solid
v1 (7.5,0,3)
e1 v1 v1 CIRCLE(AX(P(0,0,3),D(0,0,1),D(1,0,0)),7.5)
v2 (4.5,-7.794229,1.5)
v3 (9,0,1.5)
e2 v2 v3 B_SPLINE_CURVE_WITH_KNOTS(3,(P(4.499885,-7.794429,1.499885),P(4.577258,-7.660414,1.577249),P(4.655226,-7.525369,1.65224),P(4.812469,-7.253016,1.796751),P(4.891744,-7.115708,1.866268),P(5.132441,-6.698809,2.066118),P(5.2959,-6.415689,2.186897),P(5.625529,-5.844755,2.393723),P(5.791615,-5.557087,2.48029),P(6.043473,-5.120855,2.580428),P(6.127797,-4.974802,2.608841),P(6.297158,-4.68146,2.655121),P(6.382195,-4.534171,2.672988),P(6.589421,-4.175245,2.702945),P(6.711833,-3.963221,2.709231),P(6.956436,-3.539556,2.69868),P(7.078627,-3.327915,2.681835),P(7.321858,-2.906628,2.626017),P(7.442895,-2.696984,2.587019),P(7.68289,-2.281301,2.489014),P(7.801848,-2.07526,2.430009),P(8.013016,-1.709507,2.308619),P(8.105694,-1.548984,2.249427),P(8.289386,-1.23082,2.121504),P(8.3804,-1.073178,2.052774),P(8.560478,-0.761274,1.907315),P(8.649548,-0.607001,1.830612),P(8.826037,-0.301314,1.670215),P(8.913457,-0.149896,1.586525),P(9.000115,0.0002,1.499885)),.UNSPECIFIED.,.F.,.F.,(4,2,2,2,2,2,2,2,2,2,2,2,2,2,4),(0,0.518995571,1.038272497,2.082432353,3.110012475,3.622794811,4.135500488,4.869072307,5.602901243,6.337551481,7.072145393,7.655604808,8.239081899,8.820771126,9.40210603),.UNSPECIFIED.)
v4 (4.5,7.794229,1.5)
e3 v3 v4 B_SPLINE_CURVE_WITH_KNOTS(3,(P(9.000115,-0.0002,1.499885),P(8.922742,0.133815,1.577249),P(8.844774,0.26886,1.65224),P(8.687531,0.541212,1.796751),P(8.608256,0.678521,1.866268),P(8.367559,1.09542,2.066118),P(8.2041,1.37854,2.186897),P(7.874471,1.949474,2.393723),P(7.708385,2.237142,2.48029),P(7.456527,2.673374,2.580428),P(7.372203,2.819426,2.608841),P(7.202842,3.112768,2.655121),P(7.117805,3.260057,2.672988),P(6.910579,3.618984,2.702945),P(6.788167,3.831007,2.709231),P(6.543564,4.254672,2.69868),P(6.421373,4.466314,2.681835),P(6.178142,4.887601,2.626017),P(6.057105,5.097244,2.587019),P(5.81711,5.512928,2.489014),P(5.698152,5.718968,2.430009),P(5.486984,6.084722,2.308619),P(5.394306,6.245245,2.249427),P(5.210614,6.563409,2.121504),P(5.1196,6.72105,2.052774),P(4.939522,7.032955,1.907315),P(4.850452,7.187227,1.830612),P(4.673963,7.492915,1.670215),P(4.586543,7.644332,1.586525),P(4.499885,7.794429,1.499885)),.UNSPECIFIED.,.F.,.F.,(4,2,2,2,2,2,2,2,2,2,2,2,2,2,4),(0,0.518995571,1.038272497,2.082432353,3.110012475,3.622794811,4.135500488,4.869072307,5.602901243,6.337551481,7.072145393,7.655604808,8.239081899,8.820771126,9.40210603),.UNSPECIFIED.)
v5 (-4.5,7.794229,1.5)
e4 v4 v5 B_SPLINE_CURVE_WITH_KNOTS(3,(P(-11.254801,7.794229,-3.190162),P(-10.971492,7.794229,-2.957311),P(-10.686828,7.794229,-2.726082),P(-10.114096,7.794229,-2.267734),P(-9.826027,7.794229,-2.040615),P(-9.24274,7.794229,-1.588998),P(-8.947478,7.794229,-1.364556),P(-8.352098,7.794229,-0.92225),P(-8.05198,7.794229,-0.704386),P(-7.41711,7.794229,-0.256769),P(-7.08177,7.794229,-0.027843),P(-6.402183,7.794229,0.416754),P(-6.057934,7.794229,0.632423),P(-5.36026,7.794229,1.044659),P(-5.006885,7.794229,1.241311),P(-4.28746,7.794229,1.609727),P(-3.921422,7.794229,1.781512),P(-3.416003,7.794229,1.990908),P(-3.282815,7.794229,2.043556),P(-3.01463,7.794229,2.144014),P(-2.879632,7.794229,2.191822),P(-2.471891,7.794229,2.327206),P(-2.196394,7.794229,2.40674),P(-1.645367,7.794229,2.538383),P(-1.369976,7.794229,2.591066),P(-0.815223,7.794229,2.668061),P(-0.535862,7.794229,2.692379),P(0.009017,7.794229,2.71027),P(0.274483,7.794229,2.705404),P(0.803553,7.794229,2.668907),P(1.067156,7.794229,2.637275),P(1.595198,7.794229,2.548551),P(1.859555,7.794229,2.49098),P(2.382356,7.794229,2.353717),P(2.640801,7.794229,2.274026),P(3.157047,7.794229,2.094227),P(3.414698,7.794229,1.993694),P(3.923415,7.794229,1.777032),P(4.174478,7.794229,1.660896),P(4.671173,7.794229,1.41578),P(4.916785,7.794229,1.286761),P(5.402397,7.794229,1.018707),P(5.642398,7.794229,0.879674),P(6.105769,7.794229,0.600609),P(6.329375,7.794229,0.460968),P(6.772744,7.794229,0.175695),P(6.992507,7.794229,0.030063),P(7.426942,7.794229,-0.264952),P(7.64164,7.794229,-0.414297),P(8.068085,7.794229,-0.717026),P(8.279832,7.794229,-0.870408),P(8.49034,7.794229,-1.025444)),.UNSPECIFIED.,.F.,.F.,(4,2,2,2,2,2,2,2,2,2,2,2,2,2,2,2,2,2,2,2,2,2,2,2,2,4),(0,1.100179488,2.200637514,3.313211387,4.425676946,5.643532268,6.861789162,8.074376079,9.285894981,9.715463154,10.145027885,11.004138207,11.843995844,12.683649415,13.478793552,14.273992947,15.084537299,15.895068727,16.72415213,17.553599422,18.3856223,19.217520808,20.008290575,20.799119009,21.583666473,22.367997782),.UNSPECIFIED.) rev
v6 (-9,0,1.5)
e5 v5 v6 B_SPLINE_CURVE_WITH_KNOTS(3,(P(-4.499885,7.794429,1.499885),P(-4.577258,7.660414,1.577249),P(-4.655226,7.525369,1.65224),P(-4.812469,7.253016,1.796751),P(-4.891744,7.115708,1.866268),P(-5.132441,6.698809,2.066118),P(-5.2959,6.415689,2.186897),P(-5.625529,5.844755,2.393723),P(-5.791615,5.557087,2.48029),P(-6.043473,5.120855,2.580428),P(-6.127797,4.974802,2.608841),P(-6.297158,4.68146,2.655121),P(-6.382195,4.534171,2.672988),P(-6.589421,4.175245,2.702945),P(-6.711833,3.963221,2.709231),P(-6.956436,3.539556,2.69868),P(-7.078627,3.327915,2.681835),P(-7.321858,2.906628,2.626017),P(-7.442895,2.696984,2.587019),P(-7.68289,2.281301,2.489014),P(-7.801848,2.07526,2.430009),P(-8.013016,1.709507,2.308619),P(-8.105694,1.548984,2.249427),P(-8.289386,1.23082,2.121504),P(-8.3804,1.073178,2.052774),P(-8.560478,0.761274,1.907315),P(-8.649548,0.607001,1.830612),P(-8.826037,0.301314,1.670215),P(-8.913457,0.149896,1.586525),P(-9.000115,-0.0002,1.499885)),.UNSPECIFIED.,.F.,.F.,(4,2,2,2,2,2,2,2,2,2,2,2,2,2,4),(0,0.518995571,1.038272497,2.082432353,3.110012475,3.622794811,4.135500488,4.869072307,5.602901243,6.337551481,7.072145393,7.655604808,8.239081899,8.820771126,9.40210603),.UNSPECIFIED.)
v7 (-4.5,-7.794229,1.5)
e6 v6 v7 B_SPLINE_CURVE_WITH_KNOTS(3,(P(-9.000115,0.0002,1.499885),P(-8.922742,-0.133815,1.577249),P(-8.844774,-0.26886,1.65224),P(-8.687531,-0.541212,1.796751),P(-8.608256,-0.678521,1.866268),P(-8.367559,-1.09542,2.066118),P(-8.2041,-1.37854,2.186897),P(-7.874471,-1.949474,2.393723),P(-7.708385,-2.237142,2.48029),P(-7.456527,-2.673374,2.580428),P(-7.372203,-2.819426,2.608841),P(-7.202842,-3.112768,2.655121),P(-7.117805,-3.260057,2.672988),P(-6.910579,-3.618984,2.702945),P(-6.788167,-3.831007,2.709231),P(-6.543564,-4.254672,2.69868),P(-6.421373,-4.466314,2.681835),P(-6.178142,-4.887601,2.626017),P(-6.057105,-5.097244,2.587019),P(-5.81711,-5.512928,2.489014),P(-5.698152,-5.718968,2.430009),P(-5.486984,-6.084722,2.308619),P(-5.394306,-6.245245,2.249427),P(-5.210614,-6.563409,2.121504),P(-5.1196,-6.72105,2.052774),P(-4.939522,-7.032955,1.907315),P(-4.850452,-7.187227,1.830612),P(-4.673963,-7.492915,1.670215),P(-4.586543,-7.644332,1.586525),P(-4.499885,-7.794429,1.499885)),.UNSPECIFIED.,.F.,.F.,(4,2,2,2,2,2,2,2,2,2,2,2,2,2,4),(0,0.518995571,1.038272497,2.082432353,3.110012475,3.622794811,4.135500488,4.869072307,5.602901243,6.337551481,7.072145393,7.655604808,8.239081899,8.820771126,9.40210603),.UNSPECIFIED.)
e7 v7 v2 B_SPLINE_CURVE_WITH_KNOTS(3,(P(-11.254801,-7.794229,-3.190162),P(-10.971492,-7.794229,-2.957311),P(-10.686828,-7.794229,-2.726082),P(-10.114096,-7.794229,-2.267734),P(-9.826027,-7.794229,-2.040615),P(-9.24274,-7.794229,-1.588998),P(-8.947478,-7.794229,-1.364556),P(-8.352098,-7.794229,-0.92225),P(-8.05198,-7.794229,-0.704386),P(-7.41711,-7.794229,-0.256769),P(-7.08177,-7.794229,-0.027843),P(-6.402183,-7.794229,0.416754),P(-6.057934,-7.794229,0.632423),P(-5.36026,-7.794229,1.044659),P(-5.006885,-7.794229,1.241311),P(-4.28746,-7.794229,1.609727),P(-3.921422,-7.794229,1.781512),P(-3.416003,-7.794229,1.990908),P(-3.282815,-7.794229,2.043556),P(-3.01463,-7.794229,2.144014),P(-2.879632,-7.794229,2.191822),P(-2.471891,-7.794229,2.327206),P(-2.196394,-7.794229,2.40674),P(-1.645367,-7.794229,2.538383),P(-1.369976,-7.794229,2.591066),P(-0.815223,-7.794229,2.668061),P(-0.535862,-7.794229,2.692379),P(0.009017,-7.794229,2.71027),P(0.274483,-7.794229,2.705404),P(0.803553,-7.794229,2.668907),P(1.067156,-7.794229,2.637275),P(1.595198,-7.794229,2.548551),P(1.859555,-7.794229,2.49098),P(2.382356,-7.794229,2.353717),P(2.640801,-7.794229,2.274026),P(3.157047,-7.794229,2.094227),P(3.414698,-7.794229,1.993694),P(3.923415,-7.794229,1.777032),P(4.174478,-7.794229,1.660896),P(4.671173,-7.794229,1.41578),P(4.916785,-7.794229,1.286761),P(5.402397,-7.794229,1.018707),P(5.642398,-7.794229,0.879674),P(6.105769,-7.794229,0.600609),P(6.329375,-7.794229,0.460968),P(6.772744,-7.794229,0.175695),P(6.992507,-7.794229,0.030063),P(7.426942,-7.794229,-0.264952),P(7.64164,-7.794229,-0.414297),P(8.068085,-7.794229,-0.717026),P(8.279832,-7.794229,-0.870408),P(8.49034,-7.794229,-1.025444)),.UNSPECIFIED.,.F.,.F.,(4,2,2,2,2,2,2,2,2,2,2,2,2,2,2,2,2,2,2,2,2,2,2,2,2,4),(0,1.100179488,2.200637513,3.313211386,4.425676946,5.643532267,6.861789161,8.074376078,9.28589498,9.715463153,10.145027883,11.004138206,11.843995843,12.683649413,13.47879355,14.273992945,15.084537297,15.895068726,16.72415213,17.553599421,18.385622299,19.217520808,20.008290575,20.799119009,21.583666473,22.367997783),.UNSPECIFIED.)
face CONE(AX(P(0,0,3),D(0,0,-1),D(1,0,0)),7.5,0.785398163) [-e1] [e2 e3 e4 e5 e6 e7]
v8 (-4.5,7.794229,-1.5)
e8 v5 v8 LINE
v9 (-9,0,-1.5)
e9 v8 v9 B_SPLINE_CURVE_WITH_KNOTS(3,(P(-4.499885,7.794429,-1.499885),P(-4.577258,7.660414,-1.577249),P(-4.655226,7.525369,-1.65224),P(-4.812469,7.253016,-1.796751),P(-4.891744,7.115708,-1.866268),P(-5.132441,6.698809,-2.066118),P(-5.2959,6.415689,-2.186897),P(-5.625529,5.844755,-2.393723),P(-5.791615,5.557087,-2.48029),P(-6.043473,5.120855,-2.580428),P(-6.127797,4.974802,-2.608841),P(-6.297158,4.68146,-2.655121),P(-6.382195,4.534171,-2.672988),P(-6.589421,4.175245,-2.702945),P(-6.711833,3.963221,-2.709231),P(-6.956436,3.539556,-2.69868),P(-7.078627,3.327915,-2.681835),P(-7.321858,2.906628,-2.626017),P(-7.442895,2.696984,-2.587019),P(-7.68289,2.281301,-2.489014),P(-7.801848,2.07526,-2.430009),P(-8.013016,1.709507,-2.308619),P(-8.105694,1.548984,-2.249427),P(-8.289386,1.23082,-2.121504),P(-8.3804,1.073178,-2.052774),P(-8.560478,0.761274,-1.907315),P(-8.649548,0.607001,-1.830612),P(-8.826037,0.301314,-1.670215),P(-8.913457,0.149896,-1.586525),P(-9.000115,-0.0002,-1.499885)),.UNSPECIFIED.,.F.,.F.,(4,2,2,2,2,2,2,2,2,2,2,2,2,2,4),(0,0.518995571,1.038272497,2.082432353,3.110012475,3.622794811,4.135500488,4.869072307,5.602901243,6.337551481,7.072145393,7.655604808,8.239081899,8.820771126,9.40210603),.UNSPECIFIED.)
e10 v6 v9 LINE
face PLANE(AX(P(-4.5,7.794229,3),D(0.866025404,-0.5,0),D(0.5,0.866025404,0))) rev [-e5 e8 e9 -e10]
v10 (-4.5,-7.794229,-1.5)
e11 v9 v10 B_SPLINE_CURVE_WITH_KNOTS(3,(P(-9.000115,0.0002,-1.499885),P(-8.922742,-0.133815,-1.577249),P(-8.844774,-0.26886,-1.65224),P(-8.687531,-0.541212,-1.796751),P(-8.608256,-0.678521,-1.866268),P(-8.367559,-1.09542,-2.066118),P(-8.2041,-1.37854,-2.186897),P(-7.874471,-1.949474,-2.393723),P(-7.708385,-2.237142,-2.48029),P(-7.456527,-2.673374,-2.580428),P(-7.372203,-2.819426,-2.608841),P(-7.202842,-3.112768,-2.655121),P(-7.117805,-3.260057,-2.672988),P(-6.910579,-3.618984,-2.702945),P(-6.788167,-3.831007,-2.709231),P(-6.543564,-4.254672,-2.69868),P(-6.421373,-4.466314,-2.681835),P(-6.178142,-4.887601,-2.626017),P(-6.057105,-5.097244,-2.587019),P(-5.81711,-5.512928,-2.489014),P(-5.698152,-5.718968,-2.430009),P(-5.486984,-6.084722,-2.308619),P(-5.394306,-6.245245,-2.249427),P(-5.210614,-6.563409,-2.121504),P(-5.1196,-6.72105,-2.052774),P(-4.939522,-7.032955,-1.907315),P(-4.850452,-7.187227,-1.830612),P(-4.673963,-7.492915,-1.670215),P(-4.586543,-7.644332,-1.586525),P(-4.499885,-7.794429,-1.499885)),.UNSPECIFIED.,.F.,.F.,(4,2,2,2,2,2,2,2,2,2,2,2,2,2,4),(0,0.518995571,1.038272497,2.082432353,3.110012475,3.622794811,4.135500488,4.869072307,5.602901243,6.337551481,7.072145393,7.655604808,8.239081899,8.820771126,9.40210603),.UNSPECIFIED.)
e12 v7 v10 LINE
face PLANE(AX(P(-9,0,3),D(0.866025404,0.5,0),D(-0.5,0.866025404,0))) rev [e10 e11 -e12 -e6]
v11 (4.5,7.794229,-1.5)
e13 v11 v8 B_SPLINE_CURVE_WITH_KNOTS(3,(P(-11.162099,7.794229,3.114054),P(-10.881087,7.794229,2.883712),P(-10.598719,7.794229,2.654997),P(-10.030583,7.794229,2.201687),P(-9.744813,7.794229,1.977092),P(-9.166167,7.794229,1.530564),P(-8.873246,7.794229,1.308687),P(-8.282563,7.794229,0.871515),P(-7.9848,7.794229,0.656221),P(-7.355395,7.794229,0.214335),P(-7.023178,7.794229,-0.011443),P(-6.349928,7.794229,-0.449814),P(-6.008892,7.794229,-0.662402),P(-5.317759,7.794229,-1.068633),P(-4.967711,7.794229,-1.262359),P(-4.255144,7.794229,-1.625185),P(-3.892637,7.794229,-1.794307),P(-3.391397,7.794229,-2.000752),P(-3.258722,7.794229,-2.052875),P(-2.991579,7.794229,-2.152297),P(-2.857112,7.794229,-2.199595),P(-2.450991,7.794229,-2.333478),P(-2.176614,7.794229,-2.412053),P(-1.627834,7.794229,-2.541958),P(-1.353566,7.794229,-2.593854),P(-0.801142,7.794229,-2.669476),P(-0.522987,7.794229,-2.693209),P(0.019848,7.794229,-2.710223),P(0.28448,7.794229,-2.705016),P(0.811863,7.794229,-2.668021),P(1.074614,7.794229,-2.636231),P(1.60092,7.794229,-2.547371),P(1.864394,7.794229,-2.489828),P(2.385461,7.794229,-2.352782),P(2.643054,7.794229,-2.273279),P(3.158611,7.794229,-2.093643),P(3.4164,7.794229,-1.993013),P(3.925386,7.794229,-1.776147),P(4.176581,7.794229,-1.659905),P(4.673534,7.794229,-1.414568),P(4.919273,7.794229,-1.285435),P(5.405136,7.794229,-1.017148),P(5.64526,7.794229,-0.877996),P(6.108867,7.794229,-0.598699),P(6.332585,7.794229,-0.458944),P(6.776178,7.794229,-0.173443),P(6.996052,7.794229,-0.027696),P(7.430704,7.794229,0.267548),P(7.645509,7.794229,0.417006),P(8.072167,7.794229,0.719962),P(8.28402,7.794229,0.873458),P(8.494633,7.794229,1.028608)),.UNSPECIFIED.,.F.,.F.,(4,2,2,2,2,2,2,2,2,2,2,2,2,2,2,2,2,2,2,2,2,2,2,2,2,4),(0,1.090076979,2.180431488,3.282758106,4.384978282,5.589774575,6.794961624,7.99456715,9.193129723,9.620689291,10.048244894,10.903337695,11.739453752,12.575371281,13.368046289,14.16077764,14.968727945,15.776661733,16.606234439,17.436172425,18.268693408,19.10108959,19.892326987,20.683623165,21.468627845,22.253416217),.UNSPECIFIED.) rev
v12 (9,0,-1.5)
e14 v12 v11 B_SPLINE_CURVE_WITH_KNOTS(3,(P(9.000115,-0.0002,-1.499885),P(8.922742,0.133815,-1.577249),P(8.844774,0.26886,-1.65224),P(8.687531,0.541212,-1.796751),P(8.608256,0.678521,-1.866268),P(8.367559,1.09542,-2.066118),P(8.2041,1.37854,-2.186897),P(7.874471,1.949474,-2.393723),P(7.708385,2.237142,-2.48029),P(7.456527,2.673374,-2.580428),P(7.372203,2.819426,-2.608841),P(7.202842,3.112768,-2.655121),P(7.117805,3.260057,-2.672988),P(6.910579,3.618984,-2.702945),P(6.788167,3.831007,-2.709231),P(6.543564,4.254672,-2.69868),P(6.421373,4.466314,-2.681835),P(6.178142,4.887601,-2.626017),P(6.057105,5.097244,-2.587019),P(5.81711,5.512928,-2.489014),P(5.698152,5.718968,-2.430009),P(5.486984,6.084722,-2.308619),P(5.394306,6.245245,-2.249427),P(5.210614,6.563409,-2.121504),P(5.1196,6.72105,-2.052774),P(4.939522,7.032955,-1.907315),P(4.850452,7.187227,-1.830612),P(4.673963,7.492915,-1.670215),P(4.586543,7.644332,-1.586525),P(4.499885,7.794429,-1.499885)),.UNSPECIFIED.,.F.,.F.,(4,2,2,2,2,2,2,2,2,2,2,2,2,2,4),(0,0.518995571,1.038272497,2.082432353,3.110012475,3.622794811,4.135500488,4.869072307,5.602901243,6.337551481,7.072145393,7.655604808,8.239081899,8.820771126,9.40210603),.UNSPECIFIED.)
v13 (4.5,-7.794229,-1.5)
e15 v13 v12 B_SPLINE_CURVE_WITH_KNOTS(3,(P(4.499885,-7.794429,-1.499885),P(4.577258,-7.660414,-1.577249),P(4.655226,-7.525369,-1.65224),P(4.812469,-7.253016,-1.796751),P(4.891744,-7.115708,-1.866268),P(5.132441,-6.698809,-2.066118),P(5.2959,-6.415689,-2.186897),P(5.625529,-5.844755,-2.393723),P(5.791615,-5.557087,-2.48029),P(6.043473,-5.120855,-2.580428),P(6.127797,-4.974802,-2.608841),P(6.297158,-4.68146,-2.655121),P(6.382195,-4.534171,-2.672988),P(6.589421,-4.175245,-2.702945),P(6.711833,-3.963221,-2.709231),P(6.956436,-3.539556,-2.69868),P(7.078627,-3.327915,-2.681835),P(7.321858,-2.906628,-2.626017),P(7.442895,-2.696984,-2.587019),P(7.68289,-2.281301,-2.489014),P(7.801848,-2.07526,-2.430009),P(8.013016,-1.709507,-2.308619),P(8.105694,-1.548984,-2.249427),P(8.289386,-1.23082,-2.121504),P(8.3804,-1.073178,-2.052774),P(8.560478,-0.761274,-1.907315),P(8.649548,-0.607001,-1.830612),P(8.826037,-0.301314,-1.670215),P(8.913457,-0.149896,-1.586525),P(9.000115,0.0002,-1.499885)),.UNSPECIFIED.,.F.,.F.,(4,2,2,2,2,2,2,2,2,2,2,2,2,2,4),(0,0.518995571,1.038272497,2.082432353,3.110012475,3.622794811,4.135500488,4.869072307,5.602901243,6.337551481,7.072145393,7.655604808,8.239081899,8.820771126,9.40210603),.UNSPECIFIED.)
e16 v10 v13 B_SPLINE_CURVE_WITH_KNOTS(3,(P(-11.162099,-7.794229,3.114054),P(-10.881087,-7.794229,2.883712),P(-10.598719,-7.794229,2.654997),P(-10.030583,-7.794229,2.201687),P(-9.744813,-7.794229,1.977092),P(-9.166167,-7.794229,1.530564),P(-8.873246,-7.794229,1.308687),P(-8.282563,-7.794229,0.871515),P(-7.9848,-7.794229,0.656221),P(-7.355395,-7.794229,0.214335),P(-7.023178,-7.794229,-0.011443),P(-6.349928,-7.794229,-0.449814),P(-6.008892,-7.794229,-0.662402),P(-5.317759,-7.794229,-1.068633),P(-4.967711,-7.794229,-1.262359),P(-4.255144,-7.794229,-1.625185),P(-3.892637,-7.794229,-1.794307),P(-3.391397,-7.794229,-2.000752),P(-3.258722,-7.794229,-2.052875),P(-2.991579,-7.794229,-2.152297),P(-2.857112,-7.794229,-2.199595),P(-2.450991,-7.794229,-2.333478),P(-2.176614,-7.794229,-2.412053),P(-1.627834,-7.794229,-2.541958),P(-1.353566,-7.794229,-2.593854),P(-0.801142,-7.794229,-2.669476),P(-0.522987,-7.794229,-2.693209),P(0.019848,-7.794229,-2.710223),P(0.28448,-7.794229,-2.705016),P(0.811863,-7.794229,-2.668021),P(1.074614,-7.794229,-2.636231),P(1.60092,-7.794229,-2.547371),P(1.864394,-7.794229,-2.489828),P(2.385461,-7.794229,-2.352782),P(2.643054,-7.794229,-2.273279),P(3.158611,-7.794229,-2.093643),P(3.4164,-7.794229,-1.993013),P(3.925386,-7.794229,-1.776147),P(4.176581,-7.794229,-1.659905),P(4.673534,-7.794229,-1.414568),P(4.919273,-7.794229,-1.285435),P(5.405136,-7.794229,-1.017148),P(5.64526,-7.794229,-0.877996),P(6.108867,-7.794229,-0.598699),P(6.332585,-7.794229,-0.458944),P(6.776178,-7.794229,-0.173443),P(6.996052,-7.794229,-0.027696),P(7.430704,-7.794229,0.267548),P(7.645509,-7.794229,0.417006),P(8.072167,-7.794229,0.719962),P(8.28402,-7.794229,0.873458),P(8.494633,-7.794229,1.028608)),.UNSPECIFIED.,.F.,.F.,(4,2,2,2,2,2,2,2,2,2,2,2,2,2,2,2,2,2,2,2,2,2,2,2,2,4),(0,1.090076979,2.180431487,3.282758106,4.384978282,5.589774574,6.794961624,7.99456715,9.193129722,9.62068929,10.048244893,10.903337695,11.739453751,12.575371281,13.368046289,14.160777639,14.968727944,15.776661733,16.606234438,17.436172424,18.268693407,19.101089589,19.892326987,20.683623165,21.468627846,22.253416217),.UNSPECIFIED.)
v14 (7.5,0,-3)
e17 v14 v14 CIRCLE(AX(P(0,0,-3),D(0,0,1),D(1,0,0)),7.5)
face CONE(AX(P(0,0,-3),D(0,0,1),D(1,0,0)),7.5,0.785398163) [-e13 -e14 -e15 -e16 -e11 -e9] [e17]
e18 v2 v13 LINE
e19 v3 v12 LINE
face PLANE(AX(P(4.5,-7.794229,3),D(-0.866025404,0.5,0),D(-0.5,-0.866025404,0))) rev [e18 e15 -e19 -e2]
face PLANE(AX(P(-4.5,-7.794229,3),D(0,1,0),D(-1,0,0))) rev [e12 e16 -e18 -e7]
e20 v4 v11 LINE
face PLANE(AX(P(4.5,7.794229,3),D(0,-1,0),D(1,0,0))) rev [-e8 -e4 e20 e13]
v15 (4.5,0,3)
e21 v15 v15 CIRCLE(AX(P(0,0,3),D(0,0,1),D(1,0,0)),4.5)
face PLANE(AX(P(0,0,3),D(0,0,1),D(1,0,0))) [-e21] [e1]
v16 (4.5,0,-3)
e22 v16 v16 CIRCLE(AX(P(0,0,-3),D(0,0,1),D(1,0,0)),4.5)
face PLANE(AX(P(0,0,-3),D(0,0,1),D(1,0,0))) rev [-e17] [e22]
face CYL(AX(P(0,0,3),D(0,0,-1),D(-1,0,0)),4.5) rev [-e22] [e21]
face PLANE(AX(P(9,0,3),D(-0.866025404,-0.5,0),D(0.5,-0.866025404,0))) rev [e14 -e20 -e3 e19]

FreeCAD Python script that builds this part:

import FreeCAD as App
import Part
import Sketcher
Q = App.Units.Quantity


def add_polygon(sketch, points):
    """Adds a closed chain of lines whose ends are joined by coincident constraints."""
    first, n = sketch.GeometryCount, len(points)
    for a, b in zip(points, points[1:] + points[:1]):
        sketch.addGeometry(Part.LineSegment(App.Vector(*a, 0), App.Vector(*b, 0)), False)
    for i in range(n):
        sketch.addConstraint(Sketcher.Constraint("Coincident", first + i, 2, first + (i + 1) % n, 1))

doc = App.newDocument("Part")
body = doc.addObject("PartDesign::Body", "Body")

sketch1 = body.newObject("Sketcher::SketchObject", "Sketch")
sketch1.AttachmentSupport = (doc.getObject("XY_Plane"), [""])
sketch1.MapMode = "FlatFace"
add_polygon(sketch1, [(4.5, 7.794229), (-4.5, 7.794229), (-9, 0), (-4.5, -7.794229), (4.5, -7.794229), (9, 0)])
sketch1.addGeometry(Part.Circle(App.Vector(0, 0, 0), App.Vector(0, 0, 1), 4.5), False)
sketch1.addConstraint([
    Sketcher.Constraint("Horizontal", 0),
    Sketcher.Constraint("Horizontal", 3),
    Sketcher.Constraint("Coincident", 6, 3, -1, 1),
    Sketcher.Constraint("Symmetric", 0, 2, 3, 2, -1, 1),
    Sketcher.Constraint("Symmetric", 1, 2, 4, 2, -1, 1),
    Sketcher.Constraint("PointOnObject", 1, 2, -1),
    Sketcher.Constraint("Parallel", 2, 5),
    Sketcher.Constraint("Vertical", 0, 2, 2, 2),
    Sketcher.Constraint("Diameter", 6, Q("9 mm")),
    Sketcher.Constraint("DistanceX", 0, 2, 0, 1, Q("9 mm")),
    Sketcher.Constraint("Angle", 1, Q("-120 deg")),
    Sketcher.Constraint("Distance", 1, Q("9 mm")),
])
pad1 = body.newObject("PartDesign::Pad", "Pad")
pad1.Profile = sketch1
pad1.Length = 6
pad1.Midplane = True

sketch2 = body.newObject("Sketcher::SketchObject", "Sketch001")
sketch2.AttachmentSupport = (doc.getObject("XY_Plane"), [""])
sketch2.MapMode = "FlatFace"
sketch2.AttachmentOffset = App.Placement(App.Vector(0, 0, 3), App.Rotation())
add_polygon(sketch2, [(-18.456, 17.25), (-18.456, -17.25), (18.456, -17.25), (18.456, 17.25)])
sketch2.addGeometry(Part.Circle(App.Vector(0, 0, 0), App.Vector(0, 0, 1), 7.5), False)
sketch2.addConstraint([
    Sketcher.Constraint("Vertical", 0),
    Sketcher.Constraint("Horizontal", 1),
    Sketcher.Constraint("Vertical", 2),
    Sketcher.Constraint("Horizontal", 3),
    Sketcher.Constraint("Coincident", 4, 3, -1, 1),
    Sketcher.Constraint("Symmetric", 0, 2, 2, 2, -1, 1),
    Sketcher.Constraint("Diameter", 4, Q("15 mm")),
    Sketcher.Constraint("DistanceY", 0, 2, 0, 1, Q("34.5 mm")),
    Sketcher.Constraint("DistanceX", 1, 1, 1, 2, Q("36.912 mm")),
])
pocket1 = body.newObject("PartDesign::Pocket", "Pocket")
pocket1.Profile = sketch2
pocket1.Length = 6
pocket1.TaperAngle = 45
doc.recompute()

mirrored = body.newObject("PartDesign::Mirrored", "Mirrored")
mirrored.Originals = [pocket1]
mirrored.MirrorPlane = (doc.getObject("XY_Plane"), [""])
body.Tip = mirrored

doc.recompute()
